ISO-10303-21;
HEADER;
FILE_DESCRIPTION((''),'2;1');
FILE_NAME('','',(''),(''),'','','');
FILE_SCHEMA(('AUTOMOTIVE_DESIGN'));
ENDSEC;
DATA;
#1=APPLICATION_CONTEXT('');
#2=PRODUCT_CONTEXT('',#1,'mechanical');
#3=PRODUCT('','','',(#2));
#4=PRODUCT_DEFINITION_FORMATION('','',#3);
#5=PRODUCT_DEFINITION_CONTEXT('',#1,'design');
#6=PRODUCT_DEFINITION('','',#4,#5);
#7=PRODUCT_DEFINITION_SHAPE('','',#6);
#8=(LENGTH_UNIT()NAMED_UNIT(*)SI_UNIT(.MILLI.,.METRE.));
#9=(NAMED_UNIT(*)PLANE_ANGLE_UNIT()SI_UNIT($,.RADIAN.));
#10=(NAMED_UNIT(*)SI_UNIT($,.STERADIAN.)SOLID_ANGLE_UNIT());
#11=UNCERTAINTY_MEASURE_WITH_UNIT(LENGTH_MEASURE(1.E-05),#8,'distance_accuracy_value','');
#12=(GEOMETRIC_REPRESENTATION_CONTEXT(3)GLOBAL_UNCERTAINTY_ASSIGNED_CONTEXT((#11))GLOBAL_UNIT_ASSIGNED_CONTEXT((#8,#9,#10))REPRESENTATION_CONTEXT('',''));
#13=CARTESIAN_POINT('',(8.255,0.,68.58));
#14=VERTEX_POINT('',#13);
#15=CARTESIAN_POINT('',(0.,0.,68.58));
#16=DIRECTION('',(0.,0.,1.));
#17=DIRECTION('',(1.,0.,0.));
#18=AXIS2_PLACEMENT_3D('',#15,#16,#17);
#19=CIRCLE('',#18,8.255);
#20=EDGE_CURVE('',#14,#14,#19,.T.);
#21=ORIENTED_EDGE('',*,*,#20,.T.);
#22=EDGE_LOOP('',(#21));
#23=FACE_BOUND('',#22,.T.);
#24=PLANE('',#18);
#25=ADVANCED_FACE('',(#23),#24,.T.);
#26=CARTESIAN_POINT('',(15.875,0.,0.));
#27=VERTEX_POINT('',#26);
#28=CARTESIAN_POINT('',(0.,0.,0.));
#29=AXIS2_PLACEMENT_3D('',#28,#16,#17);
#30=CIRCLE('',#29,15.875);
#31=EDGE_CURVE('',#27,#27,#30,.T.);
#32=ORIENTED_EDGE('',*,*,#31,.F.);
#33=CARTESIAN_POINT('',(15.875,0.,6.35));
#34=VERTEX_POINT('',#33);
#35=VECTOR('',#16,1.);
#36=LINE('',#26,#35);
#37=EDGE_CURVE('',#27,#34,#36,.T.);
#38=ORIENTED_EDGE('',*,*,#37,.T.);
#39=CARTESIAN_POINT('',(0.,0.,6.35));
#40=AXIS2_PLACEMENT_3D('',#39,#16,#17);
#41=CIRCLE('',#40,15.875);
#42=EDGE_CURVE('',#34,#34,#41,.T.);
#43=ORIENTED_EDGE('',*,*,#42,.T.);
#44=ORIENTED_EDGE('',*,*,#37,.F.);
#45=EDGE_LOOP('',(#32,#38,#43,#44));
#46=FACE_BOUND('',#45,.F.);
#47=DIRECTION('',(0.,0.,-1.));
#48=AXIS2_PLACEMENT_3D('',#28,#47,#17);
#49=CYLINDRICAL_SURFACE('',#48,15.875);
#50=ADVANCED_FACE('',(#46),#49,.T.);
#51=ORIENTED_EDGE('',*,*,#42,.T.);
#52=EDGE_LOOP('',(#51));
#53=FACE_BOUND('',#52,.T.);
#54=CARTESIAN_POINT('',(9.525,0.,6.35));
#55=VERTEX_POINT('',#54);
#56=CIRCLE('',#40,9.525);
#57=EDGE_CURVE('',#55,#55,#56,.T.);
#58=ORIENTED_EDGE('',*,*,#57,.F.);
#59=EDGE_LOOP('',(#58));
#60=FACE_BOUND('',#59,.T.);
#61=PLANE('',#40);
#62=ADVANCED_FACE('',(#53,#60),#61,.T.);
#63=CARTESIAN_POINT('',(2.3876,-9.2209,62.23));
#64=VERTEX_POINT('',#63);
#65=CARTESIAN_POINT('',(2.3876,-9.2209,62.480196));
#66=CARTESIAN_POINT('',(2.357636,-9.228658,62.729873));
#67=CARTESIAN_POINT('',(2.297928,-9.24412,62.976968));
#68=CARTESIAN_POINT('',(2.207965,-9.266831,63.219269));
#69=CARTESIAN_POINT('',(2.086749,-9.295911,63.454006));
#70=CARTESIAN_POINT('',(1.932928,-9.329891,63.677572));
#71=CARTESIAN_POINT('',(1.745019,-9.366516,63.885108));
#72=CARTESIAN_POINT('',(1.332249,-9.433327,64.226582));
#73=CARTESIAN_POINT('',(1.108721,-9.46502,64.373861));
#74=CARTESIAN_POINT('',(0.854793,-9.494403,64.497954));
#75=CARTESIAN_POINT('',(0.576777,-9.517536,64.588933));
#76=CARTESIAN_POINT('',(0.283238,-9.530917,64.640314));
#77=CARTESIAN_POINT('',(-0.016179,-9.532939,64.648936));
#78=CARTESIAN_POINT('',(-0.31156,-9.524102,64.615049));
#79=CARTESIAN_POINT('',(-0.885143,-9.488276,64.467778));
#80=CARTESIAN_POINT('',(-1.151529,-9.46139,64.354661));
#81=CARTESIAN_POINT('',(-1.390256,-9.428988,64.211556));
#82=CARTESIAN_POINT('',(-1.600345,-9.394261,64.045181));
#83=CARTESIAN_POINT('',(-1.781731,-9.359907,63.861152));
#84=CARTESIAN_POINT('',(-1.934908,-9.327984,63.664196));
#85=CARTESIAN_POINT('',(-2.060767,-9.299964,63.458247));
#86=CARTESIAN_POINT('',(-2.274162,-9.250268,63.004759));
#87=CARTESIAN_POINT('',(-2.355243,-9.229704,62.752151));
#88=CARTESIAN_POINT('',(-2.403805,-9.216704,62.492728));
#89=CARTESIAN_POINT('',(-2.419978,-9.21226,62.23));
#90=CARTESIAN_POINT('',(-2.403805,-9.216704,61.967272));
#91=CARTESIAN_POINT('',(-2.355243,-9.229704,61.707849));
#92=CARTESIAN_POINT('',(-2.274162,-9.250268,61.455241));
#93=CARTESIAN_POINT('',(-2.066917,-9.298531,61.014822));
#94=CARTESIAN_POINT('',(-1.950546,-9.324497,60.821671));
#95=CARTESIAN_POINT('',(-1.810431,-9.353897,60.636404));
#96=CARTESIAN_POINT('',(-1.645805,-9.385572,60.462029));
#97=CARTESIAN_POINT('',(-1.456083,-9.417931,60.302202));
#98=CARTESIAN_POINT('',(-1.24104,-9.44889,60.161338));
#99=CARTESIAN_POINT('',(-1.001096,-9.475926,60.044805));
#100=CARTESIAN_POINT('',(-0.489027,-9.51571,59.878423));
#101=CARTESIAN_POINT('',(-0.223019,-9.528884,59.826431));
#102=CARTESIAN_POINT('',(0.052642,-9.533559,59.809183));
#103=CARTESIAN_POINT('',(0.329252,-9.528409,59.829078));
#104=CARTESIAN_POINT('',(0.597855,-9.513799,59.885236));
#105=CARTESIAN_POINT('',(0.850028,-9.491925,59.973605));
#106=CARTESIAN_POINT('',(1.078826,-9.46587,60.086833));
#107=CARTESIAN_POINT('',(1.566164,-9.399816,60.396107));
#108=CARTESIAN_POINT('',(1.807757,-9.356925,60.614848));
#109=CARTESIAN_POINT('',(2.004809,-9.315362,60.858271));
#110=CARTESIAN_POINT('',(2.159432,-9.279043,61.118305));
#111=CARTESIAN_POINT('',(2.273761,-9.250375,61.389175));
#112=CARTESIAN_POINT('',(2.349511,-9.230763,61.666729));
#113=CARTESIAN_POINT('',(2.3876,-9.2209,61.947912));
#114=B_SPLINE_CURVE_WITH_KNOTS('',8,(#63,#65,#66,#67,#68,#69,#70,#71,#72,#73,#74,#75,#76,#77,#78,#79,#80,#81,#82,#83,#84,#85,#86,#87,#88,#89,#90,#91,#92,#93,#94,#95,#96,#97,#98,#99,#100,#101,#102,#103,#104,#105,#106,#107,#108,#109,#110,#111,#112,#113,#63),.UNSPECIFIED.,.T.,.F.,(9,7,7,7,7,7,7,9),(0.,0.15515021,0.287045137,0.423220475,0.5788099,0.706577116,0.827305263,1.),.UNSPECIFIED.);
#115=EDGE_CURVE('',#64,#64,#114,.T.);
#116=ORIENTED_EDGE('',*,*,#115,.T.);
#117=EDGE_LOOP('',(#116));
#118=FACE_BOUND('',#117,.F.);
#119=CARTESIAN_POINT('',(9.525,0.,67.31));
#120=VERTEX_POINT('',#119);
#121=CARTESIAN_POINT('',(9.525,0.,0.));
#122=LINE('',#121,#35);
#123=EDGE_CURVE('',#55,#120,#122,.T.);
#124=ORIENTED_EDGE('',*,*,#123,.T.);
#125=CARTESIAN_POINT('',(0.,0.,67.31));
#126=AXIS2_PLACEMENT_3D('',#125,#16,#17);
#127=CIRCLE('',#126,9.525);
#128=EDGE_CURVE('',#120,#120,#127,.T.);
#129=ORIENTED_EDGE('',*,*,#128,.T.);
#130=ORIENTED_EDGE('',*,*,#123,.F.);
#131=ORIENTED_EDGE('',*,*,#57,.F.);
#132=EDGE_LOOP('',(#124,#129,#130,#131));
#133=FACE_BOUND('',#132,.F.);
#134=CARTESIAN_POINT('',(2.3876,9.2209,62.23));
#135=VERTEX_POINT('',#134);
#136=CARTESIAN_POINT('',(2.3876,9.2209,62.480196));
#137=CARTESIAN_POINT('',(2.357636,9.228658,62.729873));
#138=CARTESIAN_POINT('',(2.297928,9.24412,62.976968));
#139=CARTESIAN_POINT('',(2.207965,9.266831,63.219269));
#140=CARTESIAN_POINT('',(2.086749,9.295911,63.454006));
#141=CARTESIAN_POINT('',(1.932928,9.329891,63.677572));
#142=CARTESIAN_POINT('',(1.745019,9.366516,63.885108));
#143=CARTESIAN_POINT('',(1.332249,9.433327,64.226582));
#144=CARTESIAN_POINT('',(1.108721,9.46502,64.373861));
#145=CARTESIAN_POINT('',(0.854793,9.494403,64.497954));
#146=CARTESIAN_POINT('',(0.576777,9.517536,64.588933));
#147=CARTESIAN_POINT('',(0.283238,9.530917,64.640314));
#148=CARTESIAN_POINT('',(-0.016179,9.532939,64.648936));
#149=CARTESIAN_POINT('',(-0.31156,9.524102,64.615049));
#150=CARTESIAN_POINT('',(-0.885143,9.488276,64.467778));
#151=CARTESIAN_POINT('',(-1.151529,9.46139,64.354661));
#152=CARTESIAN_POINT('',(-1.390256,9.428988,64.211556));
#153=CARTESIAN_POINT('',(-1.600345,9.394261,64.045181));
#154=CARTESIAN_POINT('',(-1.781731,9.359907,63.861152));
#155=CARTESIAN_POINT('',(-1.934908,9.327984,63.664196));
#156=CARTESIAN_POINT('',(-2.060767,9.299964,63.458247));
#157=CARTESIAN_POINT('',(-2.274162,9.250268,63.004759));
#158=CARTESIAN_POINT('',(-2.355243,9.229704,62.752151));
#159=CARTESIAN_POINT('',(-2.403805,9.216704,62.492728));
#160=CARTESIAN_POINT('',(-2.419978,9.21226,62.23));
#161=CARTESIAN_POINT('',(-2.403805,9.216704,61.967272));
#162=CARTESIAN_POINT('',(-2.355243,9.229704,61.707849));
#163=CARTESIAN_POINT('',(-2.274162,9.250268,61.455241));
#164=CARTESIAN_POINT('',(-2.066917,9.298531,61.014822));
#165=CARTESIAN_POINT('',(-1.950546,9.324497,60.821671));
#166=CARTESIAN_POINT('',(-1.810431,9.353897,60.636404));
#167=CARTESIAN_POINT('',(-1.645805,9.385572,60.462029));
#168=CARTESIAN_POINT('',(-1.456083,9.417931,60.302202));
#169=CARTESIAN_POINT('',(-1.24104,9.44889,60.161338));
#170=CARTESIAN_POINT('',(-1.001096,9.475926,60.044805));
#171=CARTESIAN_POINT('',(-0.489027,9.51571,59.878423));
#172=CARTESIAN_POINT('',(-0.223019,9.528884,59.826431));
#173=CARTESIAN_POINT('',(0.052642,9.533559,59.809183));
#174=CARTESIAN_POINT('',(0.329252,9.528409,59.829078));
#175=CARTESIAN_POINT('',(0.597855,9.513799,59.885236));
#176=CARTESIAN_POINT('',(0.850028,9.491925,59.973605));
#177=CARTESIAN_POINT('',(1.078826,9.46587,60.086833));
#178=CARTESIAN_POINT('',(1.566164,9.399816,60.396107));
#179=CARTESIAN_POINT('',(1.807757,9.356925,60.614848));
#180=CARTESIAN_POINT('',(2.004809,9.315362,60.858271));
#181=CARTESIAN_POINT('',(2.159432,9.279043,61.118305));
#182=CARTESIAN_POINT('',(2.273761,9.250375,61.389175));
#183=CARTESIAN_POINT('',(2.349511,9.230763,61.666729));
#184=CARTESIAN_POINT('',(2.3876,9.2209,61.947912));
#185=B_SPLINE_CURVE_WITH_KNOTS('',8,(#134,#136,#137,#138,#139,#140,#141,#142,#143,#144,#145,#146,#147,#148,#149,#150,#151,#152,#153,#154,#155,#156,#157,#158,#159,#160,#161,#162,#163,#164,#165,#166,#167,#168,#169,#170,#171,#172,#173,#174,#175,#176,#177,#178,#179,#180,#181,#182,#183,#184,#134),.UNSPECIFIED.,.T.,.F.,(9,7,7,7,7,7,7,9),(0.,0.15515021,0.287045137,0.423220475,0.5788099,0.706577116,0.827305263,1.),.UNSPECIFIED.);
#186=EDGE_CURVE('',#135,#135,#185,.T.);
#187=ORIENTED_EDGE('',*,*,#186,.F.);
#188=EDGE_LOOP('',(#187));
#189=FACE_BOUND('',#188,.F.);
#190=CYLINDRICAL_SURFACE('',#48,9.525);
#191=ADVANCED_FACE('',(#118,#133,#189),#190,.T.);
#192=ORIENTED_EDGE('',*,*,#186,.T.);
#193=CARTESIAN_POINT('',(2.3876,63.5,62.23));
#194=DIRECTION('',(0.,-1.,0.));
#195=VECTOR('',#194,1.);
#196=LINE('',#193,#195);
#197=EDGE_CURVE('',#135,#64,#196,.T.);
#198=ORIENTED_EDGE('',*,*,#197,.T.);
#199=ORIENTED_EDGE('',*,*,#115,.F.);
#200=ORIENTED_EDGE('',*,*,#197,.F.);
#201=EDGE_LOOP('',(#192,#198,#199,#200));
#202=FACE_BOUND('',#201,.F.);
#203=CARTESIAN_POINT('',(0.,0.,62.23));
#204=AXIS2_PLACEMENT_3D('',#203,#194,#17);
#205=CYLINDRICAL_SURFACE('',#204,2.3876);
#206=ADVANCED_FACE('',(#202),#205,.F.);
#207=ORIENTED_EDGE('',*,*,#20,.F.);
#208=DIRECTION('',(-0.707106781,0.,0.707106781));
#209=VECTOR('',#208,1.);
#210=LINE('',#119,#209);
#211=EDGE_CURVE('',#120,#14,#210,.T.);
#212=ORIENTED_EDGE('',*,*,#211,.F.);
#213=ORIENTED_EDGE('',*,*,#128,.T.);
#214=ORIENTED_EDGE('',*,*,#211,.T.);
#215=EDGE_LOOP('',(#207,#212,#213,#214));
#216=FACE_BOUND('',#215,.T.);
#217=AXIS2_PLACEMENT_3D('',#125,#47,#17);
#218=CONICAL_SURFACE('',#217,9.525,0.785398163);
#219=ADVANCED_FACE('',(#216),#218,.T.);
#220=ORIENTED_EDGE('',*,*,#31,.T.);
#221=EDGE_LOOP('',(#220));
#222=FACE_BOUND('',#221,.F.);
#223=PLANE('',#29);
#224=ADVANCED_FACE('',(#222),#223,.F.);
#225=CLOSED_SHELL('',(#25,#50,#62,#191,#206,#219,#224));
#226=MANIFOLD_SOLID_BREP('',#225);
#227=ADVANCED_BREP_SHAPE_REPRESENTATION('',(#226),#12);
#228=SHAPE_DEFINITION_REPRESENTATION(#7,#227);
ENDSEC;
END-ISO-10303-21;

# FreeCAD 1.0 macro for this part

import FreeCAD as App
import Part
import Sketcher
Q = App.Units.Quantity


def edges_at(feature, points):
    """Names of the edges that pass closest to the given points."""
    edges = feature.Shape.Edges
    near = lambda p: min(range(len(edges)), key=lambda i: edges[i].distToShape(Part.Vertex(*p))[0])
    return sorted({f"Edge{near(p) + 1}" for p in points})

doc = App.newDocument("Part")
body = doc.addObject("PartDesign::Body", "Body")

# Sketch on XY plane
sketch1 = body.newObject("Sketcher::SketchObject", "Sketch")
sketch1.AttachmentSupport = (doc.getObject("XY_Plane"), [""])
sketch1.MapMode = "FlatFace"
sketch1.addGeometry([
    Part.Circle(App.Vector(0, 0, 0), App.Vector(0, 0, 1), 16),
    Part.Circle(App.Vector(0, 0, 0), App.Vector(0, 0, 1), 10),
], False)
sketch1.addConstraint([
    Sketcher.Constraint("Coincident", 0, 3, -1, 1),
    Sketcher.Constraint("Coincident", 1, 3, -1, 1),
    Sketcher.Constraint("Diameter", 0, Q("1.25 in")),
    Sketcher.Constraint("Diameter", 1, Q("0.75 in")),
])
pad1 = body.newObject("PartDesign::Pad", "Pad")
pad1.Profile = sketch1
pad1.Length = Q("0.25 in")

# Sketch on XY plane
sketch2 = body.newObject("Sketcher::SketchObject", "Sketch001")
sketch2.AttachmentSupport = (doc.getObject("XY_Plane"), [""])
sketch2.MapMode = "FlatFace"
sketch2.addGeometry(Part.Circle(App.Vector(0, 0, 0), App.Vector(0, 0, 1), 10), False)
sketch2.addConstraint([
    Sketcher.Constraint("Coincident", 0, 3, -1, 1),
    Sketcher.Constraint("Diameter", 0, Q("0.75 in")),
])
pad2 = body.newObject("PartDesign::Pad", "Pad001")
pad2.Profile = sketch2
pad2.Length = Q("2.7 in")

# Sketch on XZ plane
sketch3 = body.newObject("Sketcher::SketchObject", "Sketch002")
sketch3.AttachmentSupport = (doc.getObject("XZ_Plane"), [""])
sketch3.MapMode = "FlatFace"
sketch3.addGeometry(Part.Circle(App.Vector(0, 62.2, 0), App.Vector(0, 0, 1), 2.4), False)
sketch3.addConstraint([
    Sketcher.Constraint("PointOnObject", 0, 3, -2),
    Sketcher.Constraint("Diameter", 0, Q("0.188 in")),
    Sketcher.Constraint("DistanceY", -1, 1, 0, 3, Q("2.45 in")),
])
pocket1 = body.newObject("PartDesign::Pocket", "Pocket")
pocket1.Profile = sketch3
pocket1.Length = Q("5 in")
pocket1.Midplane = True
doc.recompute()

chamfer = body.newObject("PartDesign::Chamfer", "Chamfer")
chamfer.Base = (pocket1, edges_at(pocket1, [(-9.525, 0, 68.58)]))
chamfer.Size = Q("0.05 in")

doc.recompute()
